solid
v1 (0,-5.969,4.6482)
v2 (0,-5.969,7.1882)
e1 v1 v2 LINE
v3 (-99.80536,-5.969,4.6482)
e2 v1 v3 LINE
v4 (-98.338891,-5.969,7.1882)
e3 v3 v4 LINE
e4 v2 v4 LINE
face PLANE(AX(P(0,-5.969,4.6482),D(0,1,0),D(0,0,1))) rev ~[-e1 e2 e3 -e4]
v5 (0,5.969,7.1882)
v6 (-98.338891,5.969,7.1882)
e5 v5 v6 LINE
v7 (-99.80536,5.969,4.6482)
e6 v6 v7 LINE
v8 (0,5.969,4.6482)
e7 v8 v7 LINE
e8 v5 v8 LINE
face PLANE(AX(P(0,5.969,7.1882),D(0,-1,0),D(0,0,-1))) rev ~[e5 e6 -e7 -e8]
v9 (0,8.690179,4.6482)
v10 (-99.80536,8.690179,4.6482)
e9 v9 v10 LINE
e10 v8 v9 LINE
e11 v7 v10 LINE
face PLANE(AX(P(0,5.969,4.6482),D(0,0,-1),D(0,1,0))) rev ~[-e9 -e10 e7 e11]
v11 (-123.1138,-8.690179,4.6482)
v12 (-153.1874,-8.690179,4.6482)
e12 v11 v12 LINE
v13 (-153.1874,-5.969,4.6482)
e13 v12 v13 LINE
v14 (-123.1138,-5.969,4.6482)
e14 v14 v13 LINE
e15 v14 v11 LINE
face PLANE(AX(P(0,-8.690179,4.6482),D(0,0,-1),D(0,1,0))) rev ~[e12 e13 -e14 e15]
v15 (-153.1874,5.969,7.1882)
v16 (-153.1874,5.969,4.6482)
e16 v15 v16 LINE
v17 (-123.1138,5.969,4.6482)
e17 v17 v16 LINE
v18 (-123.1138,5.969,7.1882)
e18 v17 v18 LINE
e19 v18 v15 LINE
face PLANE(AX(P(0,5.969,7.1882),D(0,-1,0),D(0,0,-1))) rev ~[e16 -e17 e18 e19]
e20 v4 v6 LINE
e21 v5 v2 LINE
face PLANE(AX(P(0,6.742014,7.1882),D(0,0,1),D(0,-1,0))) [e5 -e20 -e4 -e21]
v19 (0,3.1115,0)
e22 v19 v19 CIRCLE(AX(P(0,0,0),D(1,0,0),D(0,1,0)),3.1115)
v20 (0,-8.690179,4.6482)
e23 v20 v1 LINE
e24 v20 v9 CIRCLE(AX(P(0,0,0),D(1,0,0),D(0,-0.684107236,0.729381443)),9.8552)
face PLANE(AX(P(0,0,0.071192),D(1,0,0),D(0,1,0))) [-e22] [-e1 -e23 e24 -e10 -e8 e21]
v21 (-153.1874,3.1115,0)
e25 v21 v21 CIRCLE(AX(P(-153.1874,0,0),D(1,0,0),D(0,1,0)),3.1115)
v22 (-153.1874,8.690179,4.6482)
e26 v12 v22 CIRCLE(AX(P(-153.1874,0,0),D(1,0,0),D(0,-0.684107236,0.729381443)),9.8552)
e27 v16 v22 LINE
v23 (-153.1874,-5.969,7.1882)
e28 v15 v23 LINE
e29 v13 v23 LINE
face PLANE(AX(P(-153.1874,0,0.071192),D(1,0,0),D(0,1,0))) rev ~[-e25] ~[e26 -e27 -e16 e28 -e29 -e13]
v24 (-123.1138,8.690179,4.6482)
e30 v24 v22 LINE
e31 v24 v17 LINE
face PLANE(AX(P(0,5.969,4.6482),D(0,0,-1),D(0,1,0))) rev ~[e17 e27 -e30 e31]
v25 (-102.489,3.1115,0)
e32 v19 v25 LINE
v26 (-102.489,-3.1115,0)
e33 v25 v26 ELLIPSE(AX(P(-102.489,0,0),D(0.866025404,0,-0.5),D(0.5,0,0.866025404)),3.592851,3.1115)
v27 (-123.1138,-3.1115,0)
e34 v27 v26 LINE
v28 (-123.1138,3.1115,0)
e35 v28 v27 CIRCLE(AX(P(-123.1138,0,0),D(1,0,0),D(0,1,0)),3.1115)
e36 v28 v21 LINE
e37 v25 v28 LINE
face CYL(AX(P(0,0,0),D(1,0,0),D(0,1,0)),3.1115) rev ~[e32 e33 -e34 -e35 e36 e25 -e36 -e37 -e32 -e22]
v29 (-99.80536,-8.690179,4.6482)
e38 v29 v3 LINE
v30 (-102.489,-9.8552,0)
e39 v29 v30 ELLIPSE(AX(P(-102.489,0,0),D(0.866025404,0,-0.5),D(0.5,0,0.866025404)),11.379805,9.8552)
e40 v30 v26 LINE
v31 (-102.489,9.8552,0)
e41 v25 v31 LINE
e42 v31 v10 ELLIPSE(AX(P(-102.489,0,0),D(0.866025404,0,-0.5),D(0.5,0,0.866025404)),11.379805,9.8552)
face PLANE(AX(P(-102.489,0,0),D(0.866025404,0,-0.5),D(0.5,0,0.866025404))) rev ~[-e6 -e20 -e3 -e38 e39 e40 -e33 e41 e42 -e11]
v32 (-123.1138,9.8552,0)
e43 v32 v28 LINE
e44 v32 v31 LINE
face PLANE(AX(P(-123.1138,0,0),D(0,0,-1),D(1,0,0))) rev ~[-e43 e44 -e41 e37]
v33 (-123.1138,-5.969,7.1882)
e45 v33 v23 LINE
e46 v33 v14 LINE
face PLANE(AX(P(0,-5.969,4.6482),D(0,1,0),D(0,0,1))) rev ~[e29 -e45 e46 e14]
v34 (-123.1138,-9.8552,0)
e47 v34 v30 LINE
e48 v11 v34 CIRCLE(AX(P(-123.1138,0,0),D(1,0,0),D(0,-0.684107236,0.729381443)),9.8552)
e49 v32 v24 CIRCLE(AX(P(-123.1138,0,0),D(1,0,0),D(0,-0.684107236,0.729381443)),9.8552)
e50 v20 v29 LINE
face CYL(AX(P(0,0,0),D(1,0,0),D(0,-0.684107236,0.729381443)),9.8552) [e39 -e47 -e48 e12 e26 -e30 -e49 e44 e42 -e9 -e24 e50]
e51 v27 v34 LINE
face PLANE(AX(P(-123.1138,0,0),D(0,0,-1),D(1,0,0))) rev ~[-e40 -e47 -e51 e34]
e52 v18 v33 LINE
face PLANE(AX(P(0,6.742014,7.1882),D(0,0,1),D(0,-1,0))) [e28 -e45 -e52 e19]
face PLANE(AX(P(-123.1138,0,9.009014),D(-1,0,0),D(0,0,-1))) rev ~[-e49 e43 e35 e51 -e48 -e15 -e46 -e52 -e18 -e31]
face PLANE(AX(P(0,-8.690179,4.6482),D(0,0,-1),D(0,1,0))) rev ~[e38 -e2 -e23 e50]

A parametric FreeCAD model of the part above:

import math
import FreeCAD as App
import Part
import Sketcher
from FreeCAD import Vector
Q = App.Units.Quantity


def add_polygon(sketch, points):
    """Adds a closed chain of lines whose ends are joined by coincident constraints."""
    first, n = sketch.GeometryCount, len(points)
    for a, b in zip(points, points[1:] + points[:1]):
        sketch.addGeometry(Part.LineSegment(App.Vector(*a, 0), App.Vector(*b, 0)), False)
    for i in range(n):
        sketch.addConstraint(Sketcher.Constraint("Coincident", first + i, 2, first + (i + 1) % n, 1))

doc = App.newDocument("Part")
body = doc.addObject("PartDesign::Body", "Body")

# Sketch on YZ plane
sketch1 = doc.addObject("Sketcher::SketchObject", "Sketch")
body.addObject(sketch1)
sketch1.AttachmentSupport = (doc.YZ_Plane, [""])
sketch1.MapMode = "FlatFace"
sketch1.addGeometry(Part.LineSegment(Vector(7, 7, 0), Vector(-7, 7, 0)), False)
sketch1.addGeometry(Part.ArcOfCircle(Part.Circle(Vector(0, 0, 0), Vector(0, 0, 1), 10), math.radians(133), math.radians(407)), False)
sketch1.addConstraint(Sketcher.Constraint("Coincident", 0, 1, 1, 2))
sketch1.addConstraint(Sketcher.Constraint("Coincident", 1, 1, 0, 2))
sketch1.addConstraint(Sketcher.Constraint("Horizontal", 0))
sketch1.addConstraint(Sketcher.Constraint("Coincident", 1, 3, -1, 1))
sketch1.addConstraint(Sketcher.Constraint("Radius", 1, Q("0.388 in")))
sketch1.addConstraint(Sketcher.Constraint("DistanceY", -1, 1, 0, 1, Q("0.283 in")))
pad1 = doc.addObject("PartDesign::Pad", "Pad")
body.addObject(pad1)
pad1.Profile = sketch1
pad1.Length = Q("6.031 in")
pad1.Reversed = True

# Sketch on XZ plane
sketch2 = doc.addObject("Sketcher::SketchObject", "Sketch001")
body.addObject(sketch2)
sketch2.AttachmentSupport = (doc.XZ_Plane, [""])
sketch2.MapMode = "FlatFace"
add_polygon(sketch2, [(-97, 9), (-123, 9), (-123, 0), (-102, 0)])  # lines 0-3
sketch2.addConstraint(Sketcher.Constraint("Horizontal", 0))
sketch2.addConstraint(Sketcher.Constraint("Vertical", 1))
sketch2.addConstraint(Sketcher.Constraint("Horizontal", 2))
sketch2.addConstraint(Sketcher.Constraint("PointOnObject", 1, 2, -1))
sketch2.addConstraint(Sketcher.Constraint("Angle", 3, Q("60 deg")))
sketch2.addConstraint(Sketcher.Constraint("DistanceX", 2, 1, 2, 2, Q("0.812 in")))
sketch2.addConstraint(Sketcher.Constraint("DistanceX", 0, 2, -1, 1, Q("4.847 in")))
sketch2.addConstraint(Sketcher.Constraint("DistanceX", 0, 2, 0, 1, Q("25.826157 mm")))
pocket1 = doc.addObject("PartDesign::Pocket", "Pocket")
body.addObject(pocket1)
pocket1.Profile = sketch2
pocket1.Length = Q("1.6 in")
pocket1.Midplane = True

# Sketch on YZ plane
sketch3 = doc.addObject("Sketcher::SketchObject", "Sketch002")
body.addObject(sketch3)
sketch3.AttachmentSupport = (doc.YZ_Plane, [""])
sketch3.MapMode = "FlatFace"
sketch3.addGeometry(Part.Circle(Vector(0, 0, 0), Vector(0, 0, 1), 3.1), False)
sketch3.addConstraint(Sketcher.Constraint("Coincident", 0, 3, -1, 1))
sketch3.addConstraint(Sketcher.Constraint("Diameter", 0, Q("0.245 in")))
pocket2 = doc.addObject("PartDesign::Pocket", "Pocket001")
body.addObject(pocket2)
pocket2.Profile = sketch3
pocket2.Length = Q("6.72 in")

# Sketch on YZ plane
sketch4 = doc.addObject("Sketcher::SketchObject", "Sketch003")
body.addObject(sketch4)
sketch4.AttachmentSupport = (doc.YZ_Plane, [""])
sketch4.MapMode = "FlatFace"
sketch4.addGeometry(Part.LineSegment(Vector(-6, 4.6, 0), Vector(-6, 7.2, 0)), False)
sketch4.addGeometry(Part.LineSegment(Vector(-6, 7.2, 0), Vector(-6.7, 7.2, 0)), False)
sketch4.addGeometry(Part.ArcOfCircle(Part.Circle(Vector(0, 0, 0), Vector(0, 0, 1), 9.9), math.radians(133.17), math.radians(151.86)), False)
sketch4.addGeometry(Part.LineSegment(Vector(-8.7, 4.6, 0), Vector(-6, 4.6, 0)), False)
sketch4.addGeometry(Part.LineSegment(Vector(6, 7.2, 0), Vector(6, 4.6, 0)), False)
sketch4.addGeometry(Part.LineSegment(Vector(6, 4.6, 0), Vector(8.7, 4.6, 0)), False)
sketch4.addGeometry(Part.ArcOfCircle(Part.Circle(Vector(0, 0, 0), Vector(0, 0, 1), 9.9), math.radians(28.14), math.radians(46.83)), False)
sketch4.addGeometry(Part.LineSegment(Vector(6.7, 7.2, 0), Vector(6, 7.2, 0)), False)
sketch4.addConstraint(Sketcher.Constraint("Coincident", 0, 2, 1, 1))
sketch4.addConstraint(Sketcher.Constraint("Coincident", 1, 2, 2, 1))
sketch4.addConstraint(Sketcher.Constraint("Coincident", 2, 2, 3, 1))
sketch4.addConstraint(Sketcher.Constraint("Coincident", 3, 2, 0, 1))
sketch4.addConstraint(Sketcher.Constraint("Coincident", 4, 2, 5, 1))
sketch4.addConstraint(Sketcher.Constraint("Coincident", 5, 2, 6, 1))
sketch4.addConstraint(Sketcher.Constraint("Coincident", 6, 2, 7, 1))
sketch4.addConstraint(Sketcher.Constraint("Coincident", 7, 2, 4, 1))
sketch4.addConstraint(Sketcher.Constraint("Vertical", 0))
sketch4.addConstraint(Sketcher.Constraint("Horizontal", 1))
sketch4.addConstraint(Sketcher.Constraint("Horizontal", 3))
sketch4.addConstraint(Sketcher.Constraint("Vertical", 4))
sketch4.addConstraint(Sketcher.Constraint("Horizontal", 5))
sketch4.addConstraint(Sketcher.Constraint("Horizontal", 7))
sketch4.addConstraint(Sketcher.Constraint("Coincident", 2, 3, -1, 1))
sketch4.addConstraint(Sketcher.Constraint("Coincident", 6, 3, -1, 1))
sketch4.addConstraint(Sketcher.Constraint("Equal", 2, 6))
sketch4.addConstraint(Sketcher.Constraint("Symmetric", 3, 2, 4, 2, -2))
sketch4.addConstraint(Sketcher.Constraint("Horizontal", 1, 2, 6, 2))
sketch4.addConstraint(Sketcher.Constraint("DistanceY", 0, 1, 0, 2, Q("0.1 in")))
sketch4.addConstraint(Sketcher.Constraint("Radius", 2, Q("0.388 in")))
sketch4.addConstraint(Sketcher.Constraint("DistanceX", 3, 2, 4, 2, Q("0.47 in")))
sketch4.addConstraint(Sketcher.Constraint("DistanceY", -1, 1, 0, 2, Q("0.283 in")))
pocket3 = doc.addObject("PartDesign::Pocket", "Pocket002")
body.addObject(pocket3)
pocket3.Profile = sketch4
pocket3.Type = "ThroughAll"
body2 = doc.addObject("PartDesign::Body", "Body001")

# Sketch on YZ plane
sketch5 = doc.addObject("Sketcher::SketchObject", "Sketch004")
body2.addObject(sketch5)
sketch5.AttachmentSupport = (doc.getObject("YZ_Plane001"), [""])
sketch5.MapMode = "FlatFace"
sketch5.addGeometry(Part.Circle(Vector(0, 0, 0), Vector(0, 0, 1), 15.9), False)
sketch5.addGeometry(Part.LineSegment(Vector(-6, 7.2, 0), Vector(6, 7.2, 0)), False)
sketch5.addGeometry(Part.LineSegment(Vector(6, 7.2, 0), Vector(6, 4.6, 0)), False)
sketch5.addGeometry(Part.LineSegment(Vector(6, 4.6, 0), Vector(8.7, 4.6, 0)), False)
sketch5.addGeometry(Part.ArcOfCircle(Part.Circle(Vector(0, 0, 0), Vector(0, 0, 1), 9.9), math.radians(152), math.radians(388)), False)
sketch5.addGeometry(Part.LineSegment(Vector(-8.7, 4.6, 0), Vector(-6, 4.6, 0)), False)
sketch5.addGeometry(Part.LineSegment(Vector(-6, 4.6, 0), Vector(-6, 7.2, 0)), False)
sketch5.addConstraint(Sketcher.Constraint("Coincident", 1, 2, 2, 1))
sketch5.addConstraint(Sketcher.Constraint("Coincident", 2, 2, 3, 1))
sketch5.addConstraint(Sketcher.Constraint("Coincident", 3, 2, 4, 2))
sketch5.addConstraint(Sketcher.Constraint("Coincident", 4, 1, 5, 1))
sketch5.addConstraint(Sketcher.Constraint("Coincident", 5, 2, 6, 1))
sketch5.addConstraint(Sketcher.Constraint("Coincident", 6, 2, 1, 1))
sketch5.addConstraint(Sketcher.Constraint("Horizontal", 1))
sketch5.addConstraint(Sketcher.Constraint("Vertical", 2))
sketch5.addConstraint(Sketcher.Constraint("Horizontal", 3))
sketch5.addConstraint(Sketcher.Constraint("Horizontal", 5))
sketch5.addConstraint(Sketcher.Constraint("Vertical", 6))
sketch5.addConstraint(Sketcher.Constraint("Coincident", 0, 3, -1, 1))
sketch5.addConstraint(Sketcher.Constraint("Coincident", 4, 3, -1, 1))
sketch5.addConstraint(Sketcher.Constraint("Symmetric", 2, 2, 5, 2, -2))
sketch5.addConstraint(Sketcher.Constraint("Diameter", 0, Q("1.25 in")))
sketch5.addConstraint(Sketcher.Constraint("DistanceY", 2, 2, 2, 1, Q("0.1 in")))
sketch5.addConstraint(Sketcher.Constraint("Radius", 4, Q("0.388 in")))
sketch5.addConstraint(Sketcher.Constraint("DistanceX", 1, 1, 1, 2, Q("0.47 in")))
sketch5.addConstraint(Sketcher.Constraint("DistanceY", -1, 1, 1, 2, Q("0.283 in")))
pad2 = doc.addObject("PartDesign::Pad", "Pad001")
body2.addObject(pad2)
pad2.Profile = sketch5
pad2.Length = Q("2 in")
body2.Visibility = False

doc.recompute()
